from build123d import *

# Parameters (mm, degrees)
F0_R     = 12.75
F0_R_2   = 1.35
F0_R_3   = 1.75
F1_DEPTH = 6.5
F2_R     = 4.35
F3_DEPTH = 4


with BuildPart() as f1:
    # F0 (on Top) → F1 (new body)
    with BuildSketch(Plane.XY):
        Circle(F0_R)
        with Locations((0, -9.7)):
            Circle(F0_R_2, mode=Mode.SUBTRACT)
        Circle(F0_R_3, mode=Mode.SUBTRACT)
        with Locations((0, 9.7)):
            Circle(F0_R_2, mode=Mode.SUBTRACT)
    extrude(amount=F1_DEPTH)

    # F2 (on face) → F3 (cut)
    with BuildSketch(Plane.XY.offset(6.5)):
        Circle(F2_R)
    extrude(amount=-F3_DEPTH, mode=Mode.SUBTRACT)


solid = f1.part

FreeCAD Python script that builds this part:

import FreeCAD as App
import Part
import Sketcher

doc = App.newDocument("Part")
body = doc.addObject("PartDesign::Body", "Body")

sketch1 = doc.addObject("Sketcher::SketchObject", "Sketch")
body.addObject(sketch1)
sketch1.AttachmentSupport = (doc.XY_Plane, [""])
sketch1.MapMode = "FlatFace"
sketch1.addGeometry([
    Part.Circle(App.Vector(0, 0, 0), App.Vector(0, 0, 1), 12.75),
    Part.Circle(App.Vector(0, -9.7, 0), App.Vector(0, 0, 1), 1.35),
    Part.Circle(App.Vector(0, 0, 0), App.Vector(0, 0, 1), 1.75),
    Part.Circle(App.Vector(0, 9.7, 0), App.Vector(0, 0, 1), 1.35),
], False)
sketch1.addConstraint([
    Sketcher.Constraint("Coincident", 0, 3, -1, 1),
    Sketcher.Constraint("Coincident", 2, 3, -1, 1),
    Sketcher.Constraint("Equal", 1, 3),
    Sketcher.Constraint("Symmetric", 1, 3, 3, 3, -1, 1),
    Sketcher.Constraint("PointOnObject", 1, 3, -2),
    Sketcher.Constraint("Diameter", 0, 25.5),
    Sketcher.Constraint("Diameter", 1, 2.7),
    Sketcher.Constraint("Diameter", 2, 3.5),
    Sketcher.Constraint("DistanceY", 1, 3, -1, 1, 9.7),
])
pad1 = doc.addObject("PartDesign::Pad", "Pad")
body.addObject(pad1)
pad1.Profile = sketch1
pad1.Length = 6.5

sketch2 = doc.addObject("Sketcher::SketchObject", "Sketch001")
body.addObject(sketch2)
sketch2.AttachmentSupport = (doc.XY_Plane, [""])
sketch2.MapMode = "FlatFace"
sketch2.AttachmentOffset = App.Placement(App.Vector(0, 0, 6.5), App.Rotation())
sketch2.addGeometry(Part.Circle(App.Vector(0, 0, 0), App.Vector(0, 0, 1), 4.35), False)
sketch2.addConstraint([
    Sketcher.Constraint("Coincident", 0, 3, -1, 1),
    Sketcher.Constraint("Diameter", 0, 8.7),
])
pocket1 = doc.addObject("PartDesign::Pocket", "Pocket")
body.addObject(pocket1)
pocket1.Profile = sketch2
pocket1.Length = 4

doc.recompute()
